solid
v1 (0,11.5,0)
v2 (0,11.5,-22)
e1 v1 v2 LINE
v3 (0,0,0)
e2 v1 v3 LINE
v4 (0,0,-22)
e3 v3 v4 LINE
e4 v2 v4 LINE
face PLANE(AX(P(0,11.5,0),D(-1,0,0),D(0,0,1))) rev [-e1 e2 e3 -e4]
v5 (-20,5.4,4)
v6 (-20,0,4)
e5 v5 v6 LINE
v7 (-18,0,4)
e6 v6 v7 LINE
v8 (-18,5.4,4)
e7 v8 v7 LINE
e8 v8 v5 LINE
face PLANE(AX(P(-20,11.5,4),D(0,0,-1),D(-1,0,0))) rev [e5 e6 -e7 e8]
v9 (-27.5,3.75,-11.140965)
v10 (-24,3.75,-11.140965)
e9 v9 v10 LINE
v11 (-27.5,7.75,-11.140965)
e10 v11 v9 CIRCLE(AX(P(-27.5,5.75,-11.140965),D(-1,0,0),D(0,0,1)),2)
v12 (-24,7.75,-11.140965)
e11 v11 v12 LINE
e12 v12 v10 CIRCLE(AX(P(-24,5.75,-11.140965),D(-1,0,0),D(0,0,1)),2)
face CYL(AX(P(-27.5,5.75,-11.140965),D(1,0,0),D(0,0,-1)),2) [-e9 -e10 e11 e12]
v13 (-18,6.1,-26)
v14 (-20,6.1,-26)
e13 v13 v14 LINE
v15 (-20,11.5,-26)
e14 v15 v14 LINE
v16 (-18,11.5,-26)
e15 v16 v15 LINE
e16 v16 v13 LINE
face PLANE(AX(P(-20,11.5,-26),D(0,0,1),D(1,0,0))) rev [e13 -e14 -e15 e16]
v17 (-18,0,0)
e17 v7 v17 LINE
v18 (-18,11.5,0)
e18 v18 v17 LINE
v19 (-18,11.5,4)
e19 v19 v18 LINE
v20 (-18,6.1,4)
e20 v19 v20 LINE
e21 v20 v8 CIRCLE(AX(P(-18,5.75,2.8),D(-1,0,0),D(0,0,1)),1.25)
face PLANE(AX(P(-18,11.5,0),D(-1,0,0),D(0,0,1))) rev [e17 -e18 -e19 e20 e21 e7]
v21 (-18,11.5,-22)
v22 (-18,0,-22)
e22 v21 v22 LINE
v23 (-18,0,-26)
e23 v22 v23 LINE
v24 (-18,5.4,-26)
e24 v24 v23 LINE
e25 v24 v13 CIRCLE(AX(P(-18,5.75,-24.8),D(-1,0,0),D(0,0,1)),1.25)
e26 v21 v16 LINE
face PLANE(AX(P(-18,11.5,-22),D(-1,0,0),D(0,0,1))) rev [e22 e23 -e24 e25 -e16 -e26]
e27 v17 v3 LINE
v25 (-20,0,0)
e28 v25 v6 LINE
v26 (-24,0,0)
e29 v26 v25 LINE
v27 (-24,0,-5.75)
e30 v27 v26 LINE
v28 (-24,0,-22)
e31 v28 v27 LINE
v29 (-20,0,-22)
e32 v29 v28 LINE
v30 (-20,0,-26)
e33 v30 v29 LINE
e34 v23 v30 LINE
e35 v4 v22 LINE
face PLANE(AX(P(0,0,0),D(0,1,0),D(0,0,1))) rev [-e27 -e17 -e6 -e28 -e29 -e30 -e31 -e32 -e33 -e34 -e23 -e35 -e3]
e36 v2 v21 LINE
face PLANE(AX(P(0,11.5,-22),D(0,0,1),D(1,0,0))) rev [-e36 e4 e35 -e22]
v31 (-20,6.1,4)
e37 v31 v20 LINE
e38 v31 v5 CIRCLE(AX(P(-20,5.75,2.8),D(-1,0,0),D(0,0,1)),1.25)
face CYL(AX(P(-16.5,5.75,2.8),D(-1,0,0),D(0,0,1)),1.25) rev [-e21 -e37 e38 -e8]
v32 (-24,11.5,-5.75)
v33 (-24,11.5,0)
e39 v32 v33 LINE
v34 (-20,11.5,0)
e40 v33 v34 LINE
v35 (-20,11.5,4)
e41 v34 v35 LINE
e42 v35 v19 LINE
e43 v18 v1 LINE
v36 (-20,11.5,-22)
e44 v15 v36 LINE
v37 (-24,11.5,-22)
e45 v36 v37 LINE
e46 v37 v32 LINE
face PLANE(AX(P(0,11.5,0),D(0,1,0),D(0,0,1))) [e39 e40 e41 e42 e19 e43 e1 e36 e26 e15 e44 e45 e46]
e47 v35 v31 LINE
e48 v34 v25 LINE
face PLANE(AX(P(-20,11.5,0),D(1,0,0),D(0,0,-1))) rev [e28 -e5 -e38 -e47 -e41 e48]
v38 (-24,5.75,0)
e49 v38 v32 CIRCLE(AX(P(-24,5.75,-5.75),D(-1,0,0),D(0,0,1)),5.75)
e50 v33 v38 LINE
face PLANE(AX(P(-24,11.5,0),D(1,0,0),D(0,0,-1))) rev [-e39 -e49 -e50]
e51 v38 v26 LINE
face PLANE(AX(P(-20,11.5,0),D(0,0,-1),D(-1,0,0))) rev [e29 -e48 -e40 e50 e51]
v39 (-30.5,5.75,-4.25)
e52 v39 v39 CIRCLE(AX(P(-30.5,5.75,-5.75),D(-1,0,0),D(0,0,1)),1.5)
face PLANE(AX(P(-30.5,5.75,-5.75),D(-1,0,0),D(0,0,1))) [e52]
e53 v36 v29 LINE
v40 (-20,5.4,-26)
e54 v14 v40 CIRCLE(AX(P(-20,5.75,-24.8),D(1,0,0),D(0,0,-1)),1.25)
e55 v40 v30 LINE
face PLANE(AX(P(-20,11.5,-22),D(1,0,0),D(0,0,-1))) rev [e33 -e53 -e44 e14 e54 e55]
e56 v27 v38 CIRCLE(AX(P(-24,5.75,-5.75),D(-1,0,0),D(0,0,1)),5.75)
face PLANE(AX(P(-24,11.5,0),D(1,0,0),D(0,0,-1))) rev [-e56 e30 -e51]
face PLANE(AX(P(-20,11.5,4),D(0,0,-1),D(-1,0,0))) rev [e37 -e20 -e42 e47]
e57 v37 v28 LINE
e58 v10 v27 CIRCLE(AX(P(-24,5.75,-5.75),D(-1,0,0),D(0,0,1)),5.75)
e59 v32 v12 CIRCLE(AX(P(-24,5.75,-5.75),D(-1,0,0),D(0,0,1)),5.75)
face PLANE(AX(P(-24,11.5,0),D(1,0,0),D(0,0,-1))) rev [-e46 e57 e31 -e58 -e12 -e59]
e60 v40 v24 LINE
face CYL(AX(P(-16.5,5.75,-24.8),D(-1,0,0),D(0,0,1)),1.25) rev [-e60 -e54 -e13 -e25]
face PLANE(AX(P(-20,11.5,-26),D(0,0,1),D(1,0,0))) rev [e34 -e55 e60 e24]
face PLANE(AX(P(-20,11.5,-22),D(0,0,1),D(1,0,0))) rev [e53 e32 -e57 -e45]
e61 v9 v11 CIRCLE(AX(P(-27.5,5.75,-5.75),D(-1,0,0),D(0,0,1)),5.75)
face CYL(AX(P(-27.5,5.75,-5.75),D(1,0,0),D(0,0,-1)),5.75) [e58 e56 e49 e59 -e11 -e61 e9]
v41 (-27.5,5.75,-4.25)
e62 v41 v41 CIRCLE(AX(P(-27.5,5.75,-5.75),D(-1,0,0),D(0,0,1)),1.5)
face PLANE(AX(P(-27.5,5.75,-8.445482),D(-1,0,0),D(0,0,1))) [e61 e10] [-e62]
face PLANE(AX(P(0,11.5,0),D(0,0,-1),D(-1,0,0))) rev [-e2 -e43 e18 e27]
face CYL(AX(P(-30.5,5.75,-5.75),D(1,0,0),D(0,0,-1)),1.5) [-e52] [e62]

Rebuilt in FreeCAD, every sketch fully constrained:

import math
import FreeCAD as App
import Part
import Sketcher

doc = App.newDocument("Part")
body = doc.addObject("PartDesign::Body", "Body")

# Sketch on XZ plane
sketch1 = doc.addObject("Sketcher::SketchObject", "Sketch")
body.addObject(sketch1)
sketch1.AttachmentSupport = (doc.XZ_Plane, [""])
sketch1.MapMode = "FlatFace"
sketch1.addGeometry([
    Part.LineSegment(App.Vector(-24, 0, 0), App.Vector(-20, 0, 0)),  # 0
    Part.LineSegment(App.Vector(-20, 0, 0), App.Vector(-20, 4, 0)),  # 1
    Part.LineSegment(App.Vector(-20, 4, 0), App.Vector(-18, 4, 0)),  # 2
    Part.LineSegment(App.Vector(-18, 4, 0), App.Vector(-18, 0, 0)),  # 3
    Part.LineSegment(App.Vector(-18, 0, 0), App.Vector(0, 0, 0)),  # 4
    Part.LineSegment(App.Vector(0, 0, 0), App.Vector(0, -22, 0)),  # 5
    Part.LineSegment(App.Vector(0, -22, 0), App.Vector(-18, -22, 0)),  # 6
    Part.LineSegment(App.Vector(-18, -22, 0), App.Vector(-18, -26, 0)),  # 7
    Part.LineSegment(App.Vector(-18, -26, 0), App.Vector(-20, -26, 0)),  # 8
    Part.LineSegment(App.Vector(-20, -26, 0), App.Vector(-20, -22, 0)),  # 9
    Part.LineSegment(App.Vector(-20, -22, 0), App.Vector(-24, -22, 0)),  # 10
    Part.LineSegment(App.Vector(-24, -22, 0), App.Vector(-24, 0, 0)),  # 11
], False)
sketch1.addConstraint([
    Sketcher.Constraint("Coincident", 0, 2, 1, 1),
    Sketcher.Constraint("Coincident", 1, 2, 2, 1),
    Sketcher.Constraint("Coincident", 2, 2, 3, 1),
    Sketcher.Constraint("Coincident", 3, 2, 4, 1),
    Sketcher.Constraint("Coincident", 4, 2, 5, 1),
    Sketcher.Constraint("Coincident", 5, 2, 6, 1),
    Sketcher.Constraint("Coincident", 6, 2, 7, 1),
    Sketcher.Constraint("Coincident", 7, 2, 8, 1),
    Sketcher.Constraint("Coincident", 8, 2, 9, 1),
    Sketcher.Constraint("Coincident", 9, 2, 10, 1),
    Sketcher.Constraint("Coincident", 10, 2, 11, 1),
    Sketcher.Constraint("Coincident", 11, 2, 0, 1),
    Sketcher.Constraint("Horizontal", 0),
    Sketcher.Constraint("Vertical", 1),
    Sketcher.Constraint("Horizontal", 2),
    Sketcher.Constraint("Vertical", 3),
    Sketcher.Constraint("Horizontal", 4),
    Sketcher.Constraint("Vertical", 5),
    Sketcher.Constraint("Horizontal", 6),
    Sketcher.Constraint("Vertical", 7),
    Sketcher.Constraint("Horizontal", 8),
    Sketcher.Constraint("Vertical", 9),
    Sketcher.Constraint("Horizontal", 10),
    Sketcher.Constraint("Vertical", 11),
    Sketcher.Constraint("Coincident", 4, 2, -1, 1),
    Sketcher.Constraint("PointOnObject", 0, 2, -1),
    Sketcher.Constraint("Horizontal", 6, 2, 9, 2),
    Sketcher.Constraint("Vertical", 3, 2, 6, 2),
    Sketcher.Constraint("Vertical", 1, 2, 8, 2),
    Sketcher.Constraint("Equal", 10, 1),
    Sketcher.Constraint("Equal", 3, 7),
    Sketcher.Constraint("DistanceX", 0, 1, 0, 2, 4.0),
    Sketcher.Constraint("DistanceX", 2, 1, 2, 2, 2.0),
    Sketcher.Constraint("DistanceX", 4, 1, 4, 2, 18.0),
    Sketcher.Constraint("DistanceY", 5, 2, 5, 1, 22.0),
])
pad1 = doc.addObject("PartDesign::Pad", "Pad")
body.addObject(pad1)
pad1.Profile = sketch1
pad1.Length = 11.5
pad1.Reversed = True

# Sketch on YZ plane
sketch2 = doc.addObject("Sketcher::SketchObject", "Sketch001")
body.addObject(sketch2)
sketch2.AttachmentSupport = (doc.YZ_Plane, [""])
sketch2.MapMode = "FlatFace"
sketch2.AttachmentOffset = App.Placement(App.Vector(0, 0, -24), App.Rotation())
sketch2.addGeometry([
    Part.ArcOfCircle(Part.Circle(App.Vector(5.8, -5.8, 0), App.Vector(0, 0, 1), 5.8), math.radians(-70), math.radians(250)),
    Part.ArcOfCircle(Part.Circle(App.Vector(5.8, -11.1, 0), App.Vector(0, 0, 1), 2), math.radians(180), math.radians(360)),
], False)
sketch2.addConstraint([
    Sketcher.Constraint("Coincident", 0, 1, 1, 2),
    Sketcher.Constraint("Coincident", 1, 1, 0, 2),
    Sketcher.Constraint("Horizontal", 1, 3, 0, 1),
    Sketcher.Constraint("Horizontal", 0, 1, 1, 1),
    Sketcher.Constraint("Radius", 1, 2.0),
    Sketcher.Constraint("Radius", 0, 5.75),
    Sketcher.Constraint("DistanceX", -1, 1, 0, 3, 5.75),
    Sketcher.Constraint("DistanceY", 0, 3, -1, 1, 5.75),
])
pad2 = doc.addObject("PartDesign::Pad", "Pad001")
body.addObject(pad2)
pad2.Profile = sketch2
pad2.Length = 3.5
pad2.Reversed = True

# Sketch on YZ plane
sketch3 = doc.addObject("Sketcher::SketchObject", "Sketch002")
body.addObject(sketch3)
sketch3.AttachmentSupport = (doc.YZ_Plane, [""])
sketch3.MapMode = "FlatFace"
sketch3.AttachmentOffset = App.Placement(App.Vector(0, 0, -27.5), App.Rotation())
sketch3.addGeometry(Part.Circle(App.Vector(5.8, -5.8, 0), App.Vector(0, 0, 1), 1.5), False)
sketch3.addConstraint([
    Sketcher.Constraint("Diameter", 0, 3.0),
    Sketcher.Constraint("DistanceX", -1, 1, 0, 3, 5.75),
    Sketcher.Constraint("DistanceY", 0, 3, -1, 1, 5.75),
])
pad3 = doc.addObject("PartDesign::Pad", "Pad002")
body.addObject(pad3)
pad3.Profile = sketch3
pad3.Length = 3
pad3.Reversed = True

# Sketch on YZ plane
sketch4 = doc.addObject("Sketcher::SketchObject", "Sketch003")
body.addObject(sketch4)
sketch4.AttachmentSupport = (doc.YZ_Plane, [""])
sketch4.MapMode = "FlatFace"
sketch4.AttachmentOffset = App.Placement(App.Vector(0, 0, -20), App.Rotation())
sketch4.addGeometry([
    Part.Circle(App.Vector(5.8, -24.8, 0), App.Vector(0, 0, 1), 1.2),
    Part.Circle(App.Vector(5.8, 2.8, 0), App.Vector(0, 0, 1), 1.2),
], False)
sketch4.addConstraint([
    Sketcher.Constraint("Equal", 0, 1),
    Sketcher.Constraint("Vertical", 0, 3, 1, 3),
    Sketcher.Constraint("Diameter", 0, 2.5),
    Sketcher.Constraint("DistanceY", 0, 3, -1, 1, 24.8),
    Sketcher.Constraint("DistanceY", -1, 1, 1, 3, 2.8),
    Sketcher.Constraint("DistanceX", -1, 1, 0, 3, 5.75),
])
pocket1 = doc.addObject("PartDesign::Pocket", "Pocket")
body.addObject(pocket1)
pocket1.Profile = sketch4
pocket1.Length = 3.5
pocket1.Reversed = True

doc.recompute()
